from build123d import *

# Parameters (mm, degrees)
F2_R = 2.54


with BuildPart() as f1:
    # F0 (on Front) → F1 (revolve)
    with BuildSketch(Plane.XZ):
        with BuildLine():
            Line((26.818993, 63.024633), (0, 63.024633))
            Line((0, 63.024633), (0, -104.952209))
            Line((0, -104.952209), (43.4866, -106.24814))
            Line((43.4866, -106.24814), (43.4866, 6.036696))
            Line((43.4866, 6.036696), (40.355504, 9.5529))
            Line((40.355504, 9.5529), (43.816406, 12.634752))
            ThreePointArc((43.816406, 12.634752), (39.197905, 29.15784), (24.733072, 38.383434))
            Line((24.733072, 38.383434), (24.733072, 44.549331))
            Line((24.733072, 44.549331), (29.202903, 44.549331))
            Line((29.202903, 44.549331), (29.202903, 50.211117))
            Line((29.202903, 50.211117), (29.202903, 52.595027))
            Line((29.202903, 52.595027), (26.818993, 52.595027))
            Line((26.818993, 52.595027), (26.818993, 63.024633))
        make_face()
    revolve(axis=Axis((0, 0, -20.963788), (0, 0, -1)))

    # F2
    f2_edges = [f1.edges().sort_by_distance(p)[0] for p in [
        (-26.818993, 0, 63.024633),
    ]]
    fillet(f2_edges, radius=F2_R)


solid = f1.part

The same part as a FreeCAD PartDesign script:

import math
import FreeCAD as App
import Part
import Sketcher
from FreeCAD import Vector
Q = App.Units.Quantity


def edges_at(feature, points):
    """Names of the edges that pass closest to the given points."""
    edges = feature.Shape.Edges
    near = lambda p: min(range(len(edges)), key=lambda i: edges[i].distToShape(Part.Vertex(*p))[0])
    return sorted({f"Edge{near(p) + 1}" for p in points})

doc = App.newDocument("Part")
body = doc.addObject("PartDesign::Body", "Body")

# Sketch on XZ plane
sketch1 = body.newObject("Sketcher::SketchObject", "Sketch")
sketch1.AttachmentSupport = (doc.getObject("XZ_Plane"), [""])
sketch1.MapMode = "FlatFace"
sketch1.addGeometry(Part.LineSegment(Vector(26.8, 63, 0), Vector(0, 63, 0)), False)
sketch1.addGeometry(Part.LineSegment(Vector(0, 63, 0), Vector(0, -105, 0)), False)
sketch1.addGeometry(Part.LineSegment(Vector(0, -105, 0), Vector(43.5, -106.2, 0)), False)
sketch1.addGeometry(Part.LineSegment(Vector(43.5, -106.2, 0), Vector(43.5, 6, 0)), False)
sketch1.addGeometry(Part.LineSegment(Vector(43.5, 6, 0), Vector(40.4, 9.6, 0)), False)
sketch1.addGeometry(Part.LineSegment(Vector(40.4, 9.6, 0), Vector(43.8, 12.6, 0)), False)
sketch1.addGeometry(Part.ArcOfCircle(Part.Circle(Vector(19.9, 14.9, 0), Vector(0, 0, 1), 24), math.radians(-5), math.radians(78)), False)
sketch1.addGeometry(Part.LineSegment(Vector(24.7, 38.4, 0), Vector(24.7, 44.5, 0)), False)
sketch1.addGeometry(Part.LineSegment(Vector(24.7, 44.5, 0), Vector(29.2, 44.5, 0)), False)
sketch1.addGeometry(Part.LineSegment(Vector(29.2, 44.5, 0), Vector(29.2, 52.6, 0)), False)
sketch1.addGeometry(Part.LineSegment(Vector(29.2, 52.6, 0), Vector(26.8, 52.6, 0)), False)
sketch1.addGeometry(Part.LineSegment(Vector(26.8, 52.6, 0), Vector(26.8, 63, 0)), False)
sketch1.addConstraint(Sketcher.Constraint("Coincident", 0, 2, 1, 1))
sketch1.addConstraint(Sketcher.Constraint("Coincident", 1, 2, 2, 1))
sketch1.addConstraint(Sketcher.Constraint("Coincident", 2, 2, 3, 1))
sketch1.addConstraint(Sketcher.Constraint("Coincident", 3, 2, 4, 1))
sketch1.addConstraint(Sketcher.Constraint("Coincident", 4, 2, 5, 1))
sketch1.addConstraint(Sketcher.Constraint("Coincident", 5, 2, 6, 1))
sketch1.addConstraint(Sketcher.Constraint("Coincident", 6, 2, 7, 1))
sketch1.addConstraint(Sketcher.Constraint("Coincident", 7, 2, 8, 1))
sketch1.addConstraint(Sketcher.Constraint("Coincident", 8, 2, 9, 1))
sketch1.addConstraint(Sketcher.Constraint("Coincident", 9, 2, 10, 1))
sketch1.addConstraint(Sketcher.Constraint("Coincident", 10, 2, 11, 1))
sketch1.addConstraint(Sketcher.Constraint("Coincident", 11, 2, 0, 1))
sketch1.addConstraint(Sketcher.Constraint("Horizontal", 0))
sketch1.addConstraint(Sketcher.Constraint("Vertical", 1))
sketch1.addConstraint(Sketcher.Constraint("Vertical", 3))
sketch1.addConstraint(Sketcher.Constraint("Vertical", 7))
sketch1.addConstraint(Sketcher.Constraint("Horizontal", 8))
sketch1.addConstraint(Sketcher.Constraint("Vertical", 9))
sketch1.addConstraint(Sketcher.Constraint("Horizontal", 10))
sketch1.addConstraint(Sketcher.Constraint("Vertical", 11))
sketch1.addConstraint(Sketcher.Constraint("PointOnObject", 0, 2, -2))
sketch1.addConstraint(Sketcher.Constraint("Perpendicular", 4, 5))
sketch1.addConstraint(Sketcher.Constraint("Radius", 6, 24.016704))
sketch1.addConstraint(Sketcher.Constraint("DistanceX", 8, 1, 8, 2, 4.469831))
sketch1.addConstraint(Sketcher.Constraint("DistanceX", 10, 2, 10, 1, 2.38391))
sketch1.addConstraint(Sketcher.Constraint("DistanceY", 1, 2, 1, 1, 167.976842))
sketch1.addConstraint(Sketcher.Constraint("DistanceX", -1, 1, 2, 2, 43.4866))
sketch1.addConstraint(Sketcher.Constraint("DistanceY", -1, 1, 4, 2, 9.5529))
sketch1.addConstraint(Sketcher.Constraint("DistanceX", 4, 2, 5, 2, 3.460902))
sketch1.addConstraint(Sketcher.Constraint("DistanceY", 6, 2, 0, 2, 24.641199))
sketch1.addConstraint(Sketcher.Constraint("DistanceY", 7, 2, 0, 2, 18.475302))
sketch1.addConstraint(Sketcher.Constraint("DistanceX", 0, 2, 0, 1, 26.818993))
sketch1.addConstraint(Sketcher.Constraint("DistanceY", 3, 1, 3, 2, 112.284836))
sketch1.addConstraint(Sketcher.Constraint("DistanceY", 9, 1, 9, 2, 8.045696))
sketch1.addConstraint(Sketcher.Constraint("DistanceX", -1, 1, 6, 3, 19.902779))
sketch1.addConstraint(Sketcher.Constraint("DistanceY", 1, 2, -1, 1, 104.952209))
sketch1.addConstraint(Sketcher.Constraint("DistanceY", 2, 2, -1, 1, 106.24814))
revolution = body.newObject("PartDesign::Revolution", "Revolution")
revolution.Profile = sketch1
revolution.ReferenceAxis = (sketch1, ["V_Axis"])
revolution.Angle = 360
doc.recompute()

fillet = body.newObject("PartDesign::Fillet", "Fillet")
fillet.Base = (revolution, edges_at(revolution, [(-26.819, 0, 63.025)]))
fillet.Radius = Q("0.1 in")

doc.recompute()
